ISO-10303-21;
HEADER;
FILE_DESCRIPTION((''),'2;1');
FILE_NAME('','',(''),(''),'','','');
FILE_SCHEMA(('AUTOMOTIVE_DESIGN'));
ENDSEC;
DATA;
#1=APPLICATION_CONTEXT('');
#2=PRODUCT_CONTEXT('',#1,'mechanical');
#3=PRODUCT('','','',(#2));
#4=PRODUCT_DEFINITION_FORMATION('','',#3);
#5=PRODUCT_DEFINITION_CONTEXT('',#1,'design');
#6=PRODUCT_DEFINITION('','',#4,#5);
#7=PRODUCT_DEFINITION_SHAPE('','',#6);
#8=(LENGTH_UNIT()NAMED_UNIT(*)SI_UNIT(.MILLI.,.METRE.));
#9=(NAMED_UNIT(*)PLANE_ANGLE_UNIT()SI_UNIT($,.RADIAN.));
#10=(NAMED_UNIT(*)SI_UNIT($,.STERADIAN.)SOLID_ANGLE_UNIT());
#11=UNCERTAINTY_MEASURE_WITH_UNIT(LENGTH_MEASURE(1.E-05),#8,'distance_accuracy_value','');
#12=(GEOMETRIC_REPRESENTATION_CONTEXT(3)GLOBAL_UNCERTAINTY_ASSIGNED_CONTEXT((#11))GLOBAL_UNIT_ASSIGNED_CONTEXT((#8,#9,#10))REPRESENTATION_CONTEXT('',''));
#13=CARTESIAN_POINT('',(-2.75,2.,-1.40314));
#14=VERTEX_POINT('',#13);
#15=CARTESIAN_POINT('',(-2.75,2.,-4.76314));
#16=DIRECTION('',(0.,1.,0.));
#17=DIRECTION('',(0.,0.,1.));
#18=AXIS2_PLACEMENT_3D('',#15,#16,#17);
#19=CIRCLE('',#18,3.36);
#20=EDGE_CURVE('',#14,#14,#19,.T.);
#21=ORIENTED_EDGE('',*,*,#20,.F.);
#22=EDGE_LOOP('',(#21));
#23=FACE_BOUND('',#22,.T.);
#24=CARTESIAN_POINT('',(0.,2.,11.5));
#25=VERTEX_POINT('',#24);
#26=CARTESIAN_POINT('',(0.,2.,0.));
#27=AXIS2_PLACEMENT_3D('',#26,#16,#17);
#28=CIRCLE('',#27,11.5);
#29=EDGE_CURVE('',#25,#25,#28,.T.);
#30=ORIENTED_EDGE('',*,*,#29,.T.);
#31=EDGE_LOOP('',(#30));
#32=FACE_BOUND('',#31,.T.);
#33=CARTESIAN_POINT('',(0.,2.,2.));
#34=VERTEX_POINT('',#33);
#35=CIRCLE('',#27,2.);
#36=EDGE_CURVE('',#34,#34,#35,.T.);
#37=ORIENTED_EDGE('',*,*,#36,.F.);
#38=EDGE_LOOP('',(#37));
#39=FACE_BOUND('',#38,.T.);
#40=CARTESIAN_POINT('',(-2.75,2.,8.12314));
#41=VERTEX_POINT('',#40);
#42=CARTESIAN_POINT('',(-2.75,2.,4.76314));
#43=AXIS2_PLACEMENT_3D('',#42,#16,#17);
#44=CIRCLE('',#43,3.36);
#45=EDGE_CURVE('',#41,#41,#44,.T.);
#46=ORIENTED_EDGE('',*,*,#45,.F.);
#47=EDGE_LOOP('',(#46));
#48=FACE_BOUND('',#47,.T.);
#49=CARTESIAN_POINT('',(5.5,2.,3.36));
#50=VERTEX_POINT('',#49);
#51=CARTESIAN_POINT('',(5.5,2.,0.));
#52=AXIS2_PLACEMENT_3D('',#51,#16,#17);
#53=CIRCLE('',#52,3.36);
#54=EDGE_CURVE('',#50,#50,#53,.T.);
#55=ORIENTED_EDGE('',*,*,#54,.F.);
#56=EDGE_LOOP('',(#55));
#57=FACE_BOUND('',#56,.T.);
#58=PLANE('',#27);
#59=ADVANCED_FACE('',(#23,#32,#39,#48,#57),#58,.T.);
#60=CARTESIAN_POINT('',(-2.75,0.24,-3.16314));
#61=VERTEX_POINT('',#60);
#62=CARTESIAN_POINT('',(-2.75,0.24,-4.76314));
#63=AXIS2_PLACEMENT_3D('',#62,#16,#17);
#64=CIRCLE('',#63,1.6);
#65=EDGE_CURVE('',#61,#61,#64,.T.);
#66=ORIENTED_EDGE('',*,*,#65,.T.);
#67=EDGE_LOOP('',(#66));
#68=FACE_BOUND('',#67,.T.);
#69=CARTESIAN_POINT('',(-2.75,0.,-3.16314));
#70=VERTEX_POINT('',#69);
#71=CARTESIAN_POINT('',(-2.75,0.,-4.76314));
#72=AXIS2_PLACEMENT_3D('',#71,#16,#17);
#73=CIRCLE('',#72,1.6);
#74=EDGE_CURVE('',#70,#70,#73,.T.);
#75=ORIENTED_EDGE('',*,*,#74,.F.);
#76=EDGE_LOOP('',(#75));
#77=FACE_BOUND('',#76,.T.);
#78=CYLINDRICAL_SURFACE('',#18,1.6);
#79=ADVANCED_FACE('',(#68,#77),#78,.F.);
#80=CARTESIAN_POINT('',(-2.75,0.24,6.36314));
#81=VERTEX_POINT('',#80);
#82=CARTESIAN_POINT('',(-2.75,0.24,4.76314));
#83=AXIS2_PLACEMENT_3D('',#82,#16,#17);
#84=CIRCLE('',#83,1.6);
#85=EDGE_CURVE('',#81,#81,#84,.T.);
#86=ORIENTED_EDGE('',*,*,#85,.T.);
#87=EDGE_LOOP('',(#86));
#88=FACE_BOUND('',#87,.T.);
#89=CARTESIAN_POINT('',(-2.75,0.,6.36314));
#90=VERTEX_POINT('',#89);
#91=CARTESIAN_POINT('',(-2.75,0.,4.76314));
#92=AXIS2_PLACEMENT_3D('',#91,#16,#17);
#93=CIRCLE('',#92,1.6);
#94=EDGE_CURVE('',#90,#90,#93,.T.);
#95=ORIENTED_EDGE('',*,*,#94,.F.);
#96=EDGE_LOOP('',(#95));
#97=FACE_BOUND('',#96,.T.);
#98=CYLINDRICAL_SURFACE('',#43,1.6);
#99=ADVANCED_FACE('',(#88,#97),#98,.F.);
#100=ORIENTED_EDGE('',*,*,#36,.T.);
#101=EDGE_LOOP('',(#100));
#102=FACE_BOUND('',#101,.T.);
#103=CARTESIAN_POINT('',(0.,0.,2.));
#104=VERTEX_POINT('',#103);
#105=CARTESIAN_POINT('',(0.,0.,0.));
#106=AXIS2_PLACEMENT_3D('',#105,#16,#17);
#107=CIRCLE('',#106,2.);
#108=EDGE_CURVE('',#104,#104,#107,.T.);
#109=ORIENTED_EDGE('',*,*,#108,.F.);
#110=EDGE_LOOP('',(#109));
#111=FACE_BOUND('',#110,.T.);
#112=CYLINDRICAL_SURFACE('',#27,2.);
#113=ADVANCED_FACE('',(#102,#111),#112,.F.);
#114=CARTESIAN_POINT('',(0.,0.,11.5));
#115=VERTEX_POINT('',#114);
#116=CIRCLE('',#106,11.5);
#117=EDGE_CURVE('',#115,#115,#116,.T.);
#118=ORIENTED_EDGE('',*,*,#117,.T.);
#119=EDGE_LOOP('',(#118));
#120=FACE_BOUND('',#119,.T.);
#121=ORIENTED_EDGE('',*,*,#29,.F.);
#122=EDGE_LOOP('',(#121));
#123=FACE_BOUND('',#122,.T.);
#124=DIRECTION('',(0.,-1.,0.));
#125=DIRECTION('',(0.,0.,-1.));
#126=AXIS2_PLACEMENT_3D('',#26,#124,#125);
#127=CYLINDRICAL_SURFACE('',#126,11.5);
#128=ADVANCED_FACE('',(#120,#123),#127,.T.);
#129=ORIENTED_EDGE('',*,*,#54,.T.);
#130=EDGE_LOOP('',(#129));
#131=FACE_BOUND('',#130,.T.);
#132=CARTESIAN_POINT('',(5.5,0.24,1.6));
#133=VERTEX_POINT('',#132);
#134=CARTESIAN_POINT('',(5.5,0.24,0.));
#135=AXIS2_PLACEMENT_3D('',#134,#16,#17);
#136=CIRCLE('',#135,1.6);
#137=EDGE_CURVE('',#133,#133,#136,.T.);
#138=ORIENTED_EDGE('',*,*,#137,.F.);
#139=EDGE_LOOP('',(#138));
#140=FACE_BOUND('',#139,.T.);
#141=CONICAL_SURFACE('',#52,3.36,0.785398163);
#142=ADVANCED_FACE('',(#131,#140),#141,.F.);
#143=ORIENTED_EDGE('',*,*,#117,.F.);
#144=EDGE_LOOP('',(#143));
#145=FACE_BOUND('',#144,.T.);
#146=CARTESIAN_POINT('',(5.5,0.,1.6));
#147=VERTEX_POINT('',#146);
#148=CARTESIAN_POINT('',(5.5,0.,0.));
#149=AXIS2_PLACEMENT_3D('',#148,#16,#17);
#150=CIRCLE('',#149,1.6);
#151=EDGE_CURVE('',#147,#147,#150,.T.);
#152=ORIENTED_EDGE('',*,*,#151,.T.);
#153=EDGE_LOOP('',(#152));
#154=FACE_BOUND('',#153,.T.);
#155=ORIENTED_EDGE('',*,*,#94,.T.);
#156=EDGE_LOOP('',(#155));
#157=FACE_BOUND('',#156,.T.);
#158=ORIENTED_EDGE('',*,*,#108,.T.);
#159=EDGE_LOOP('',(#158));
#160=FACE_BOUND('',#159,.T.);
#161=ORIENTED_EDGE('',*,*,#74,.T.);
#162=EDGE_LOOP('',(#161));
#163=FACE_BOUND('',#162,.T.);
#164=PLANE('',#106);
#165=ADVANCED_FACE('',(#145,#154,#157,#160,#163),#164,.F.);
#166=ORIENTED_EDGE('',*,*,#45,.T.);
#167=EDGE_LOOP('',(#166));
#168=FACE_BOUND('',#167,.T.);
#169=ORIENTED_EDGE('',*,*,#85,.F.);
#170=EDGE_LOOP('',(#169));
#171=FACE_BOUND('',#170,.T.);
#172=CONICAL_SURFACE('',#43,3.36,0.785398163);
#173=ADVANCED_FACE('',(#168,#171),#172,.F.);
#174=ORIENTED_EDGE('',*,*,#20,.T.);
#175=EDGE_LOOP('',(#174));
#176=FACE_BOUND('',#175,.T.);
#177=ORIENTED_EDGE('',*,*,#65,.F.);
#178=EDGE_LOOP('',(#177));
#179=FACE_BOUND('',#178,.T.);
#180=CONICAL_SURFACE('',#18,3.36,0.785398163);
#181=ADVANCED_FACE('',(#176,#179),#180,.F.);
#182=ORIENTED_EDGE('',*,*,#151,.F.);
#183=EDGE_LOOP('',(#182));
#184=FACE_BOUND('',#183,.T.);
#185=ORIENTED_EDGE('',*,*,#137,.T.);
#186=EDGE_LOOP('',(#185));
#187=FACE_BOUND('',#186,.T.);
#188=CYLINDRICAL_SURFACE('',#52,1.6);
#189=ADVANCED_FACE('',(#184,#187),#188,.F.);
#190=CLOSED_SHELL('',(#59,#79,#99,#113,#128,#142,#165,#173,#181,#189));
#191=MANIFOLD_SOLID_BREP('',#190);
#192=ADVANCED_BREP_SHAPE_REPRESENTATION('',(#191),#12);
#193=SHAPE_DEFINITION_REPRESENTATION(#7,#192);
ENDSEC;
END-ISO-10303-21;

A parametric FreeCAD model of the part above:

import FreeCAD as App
import Part
import Sketcher
from FreeCAD import Vector
Q = App.Units.Quantity

doc = App.newDocument("Part")
body = doc.addObject("PartDesign::Body", "Body")

# Sketch on XZ plane
sketch1 = body.newObject("Sketcher::SketchObject", "Sketch")
sketch1.AttachmentSupport = (doc.getObject("XZ_Plane"), [""])
sketch1.MapMode = "FlatFace"
sketch1.addGeometry(Part.Circle(Vector(0, 0, 0), Vector(0, 0, 1), 12), False)
sketch1.addConstraint([
    Sketcher.Constraint("Coincident", 0, 3, -1, 1),
    Sketcher.Constraint("Diameter", 0, 23.0),
])
pad1 = body.newObject("PartDesign::Pad", "Pad")
pad1.Profile = sketch1
pad1.Length = 2
pad1.Reversed = True

# Sketch on YZ plane
sketch2 = body.newObject("Sketcher::SketchObject", "Sketch001")
sketch2.AttachmentSupport = (doc.getObject("YZ_Plane"), [""])
sketch2.MapMode = "FlatFace"
sketch2.AttachmentOffset = App.Placement(Vector(0, 0, 5.5), App.Rotation())
sketch2.addGeometry([
    Part.LineSegment(Vector(0, 0, 0), Vector(2, 0, 0)),  # 0
    Part.LineSegment(Vector(2, 0, 0), Vector(2, 3.36, 0)),  # 1
    Part.LineSegment(Vector(2, 3.36, 0), Vector(0.24, 1.6, 0)),  # 2
    Part.LineSegment(Vector(0.24, 1.6, 0), Vector(0, 1.6, 0)),  # 3
    Part.LineSegment(Vector(0, 1.6, 0), Vector(0, 0, 0)),  # 4
], False)
sketch2.addConstraint([
    Sketcher.Constraint("Coincident", 0, 2, 1, 1),
    Sketcher.Constraint("Coincident", 1, 2, 2, 1),
    Sketcher.Constraint("Coincident", 2, 2, 3, 1),
    Sketcher.Constraint("Coincident", 3, 2, 4, 1),
    Sketcher.Constraint("Coincident", 4, 2, 0, 1),
    Sketcher.Constraint("Horizontal", 0),
    Sketcher.Constraint("Vertical", 1),
    Sketcher.Constraint("Horizontal", 3),
    Sketcher.Constraint("Vertical", 4),
    Sketcher.Constraint("PointOnObject", 0, 2, -1),
    Sketcher.Constraint("Angle", 2, Q("-135 deg")),
    Sketcher.Constraint("DistanceY", 4, 2, 4, 1, 1.6),
    Sketcher.Constraint("DistanceX", -1, 1, 0, 2, 2.0),
    Sketcher.Constraint("DistanceY", 1, 1, 1, 2, 3.36),
    Sketcher.Constraint("DistanceX", 0, 1, 0, 2, 2.001),
])
groove = body.newObject("PartDesign::Groove", "Groove")
groove.Profile = sketch2
groove.ReferenceAxis = (sketch2, ["H_Axis"])
groove.Angle = 360
doc.recompute()

polarpattern = body.newObject("PartDesign::PolarPattern", "PolarPattern")
polarpattern.Originals = [groove]
polarpattern.Axis = (doc.getObject("Y_Axis"), [""])
polarpattern.Angle = 360
polarpattern.Occurrences = 3
body.Tip = polarpattern

# Sketch on XZ plane
sketch3 = body.newObject("Sketcher::SketchObject", "Sketch002")
sketch3.AttachmentSupport = (doc.getObject("XZ_Plane"), [""])
sketch3.MapMode = "FlatFace"
sketch3.AttachmentOffset = App.Placement(Vector(0, 0, -2), App.Rotation())
sketch3.addGeometry(Part.Circle(Vector(0, 0, 0), Vector(0, 0, 1), 2), False)
sketch3.addConstraint([
    Sketcher.Constraint("Coincident", 0, 3, -1, 1),
    Sketcher.Constraint("Diameter", 0, 4.0),
])
doc.recompute()
hole = body.newObject("PartDesign::Hole", "Hole")
hole.Profile = sketch3
hole.ThreadType = "None"
hole.Diameter = 4
hole.DepthType = "Dimension"
hole.Depth = 2
hole.DrillPoint = "Flat"
hole.Reversed = True

doc.recompute()
